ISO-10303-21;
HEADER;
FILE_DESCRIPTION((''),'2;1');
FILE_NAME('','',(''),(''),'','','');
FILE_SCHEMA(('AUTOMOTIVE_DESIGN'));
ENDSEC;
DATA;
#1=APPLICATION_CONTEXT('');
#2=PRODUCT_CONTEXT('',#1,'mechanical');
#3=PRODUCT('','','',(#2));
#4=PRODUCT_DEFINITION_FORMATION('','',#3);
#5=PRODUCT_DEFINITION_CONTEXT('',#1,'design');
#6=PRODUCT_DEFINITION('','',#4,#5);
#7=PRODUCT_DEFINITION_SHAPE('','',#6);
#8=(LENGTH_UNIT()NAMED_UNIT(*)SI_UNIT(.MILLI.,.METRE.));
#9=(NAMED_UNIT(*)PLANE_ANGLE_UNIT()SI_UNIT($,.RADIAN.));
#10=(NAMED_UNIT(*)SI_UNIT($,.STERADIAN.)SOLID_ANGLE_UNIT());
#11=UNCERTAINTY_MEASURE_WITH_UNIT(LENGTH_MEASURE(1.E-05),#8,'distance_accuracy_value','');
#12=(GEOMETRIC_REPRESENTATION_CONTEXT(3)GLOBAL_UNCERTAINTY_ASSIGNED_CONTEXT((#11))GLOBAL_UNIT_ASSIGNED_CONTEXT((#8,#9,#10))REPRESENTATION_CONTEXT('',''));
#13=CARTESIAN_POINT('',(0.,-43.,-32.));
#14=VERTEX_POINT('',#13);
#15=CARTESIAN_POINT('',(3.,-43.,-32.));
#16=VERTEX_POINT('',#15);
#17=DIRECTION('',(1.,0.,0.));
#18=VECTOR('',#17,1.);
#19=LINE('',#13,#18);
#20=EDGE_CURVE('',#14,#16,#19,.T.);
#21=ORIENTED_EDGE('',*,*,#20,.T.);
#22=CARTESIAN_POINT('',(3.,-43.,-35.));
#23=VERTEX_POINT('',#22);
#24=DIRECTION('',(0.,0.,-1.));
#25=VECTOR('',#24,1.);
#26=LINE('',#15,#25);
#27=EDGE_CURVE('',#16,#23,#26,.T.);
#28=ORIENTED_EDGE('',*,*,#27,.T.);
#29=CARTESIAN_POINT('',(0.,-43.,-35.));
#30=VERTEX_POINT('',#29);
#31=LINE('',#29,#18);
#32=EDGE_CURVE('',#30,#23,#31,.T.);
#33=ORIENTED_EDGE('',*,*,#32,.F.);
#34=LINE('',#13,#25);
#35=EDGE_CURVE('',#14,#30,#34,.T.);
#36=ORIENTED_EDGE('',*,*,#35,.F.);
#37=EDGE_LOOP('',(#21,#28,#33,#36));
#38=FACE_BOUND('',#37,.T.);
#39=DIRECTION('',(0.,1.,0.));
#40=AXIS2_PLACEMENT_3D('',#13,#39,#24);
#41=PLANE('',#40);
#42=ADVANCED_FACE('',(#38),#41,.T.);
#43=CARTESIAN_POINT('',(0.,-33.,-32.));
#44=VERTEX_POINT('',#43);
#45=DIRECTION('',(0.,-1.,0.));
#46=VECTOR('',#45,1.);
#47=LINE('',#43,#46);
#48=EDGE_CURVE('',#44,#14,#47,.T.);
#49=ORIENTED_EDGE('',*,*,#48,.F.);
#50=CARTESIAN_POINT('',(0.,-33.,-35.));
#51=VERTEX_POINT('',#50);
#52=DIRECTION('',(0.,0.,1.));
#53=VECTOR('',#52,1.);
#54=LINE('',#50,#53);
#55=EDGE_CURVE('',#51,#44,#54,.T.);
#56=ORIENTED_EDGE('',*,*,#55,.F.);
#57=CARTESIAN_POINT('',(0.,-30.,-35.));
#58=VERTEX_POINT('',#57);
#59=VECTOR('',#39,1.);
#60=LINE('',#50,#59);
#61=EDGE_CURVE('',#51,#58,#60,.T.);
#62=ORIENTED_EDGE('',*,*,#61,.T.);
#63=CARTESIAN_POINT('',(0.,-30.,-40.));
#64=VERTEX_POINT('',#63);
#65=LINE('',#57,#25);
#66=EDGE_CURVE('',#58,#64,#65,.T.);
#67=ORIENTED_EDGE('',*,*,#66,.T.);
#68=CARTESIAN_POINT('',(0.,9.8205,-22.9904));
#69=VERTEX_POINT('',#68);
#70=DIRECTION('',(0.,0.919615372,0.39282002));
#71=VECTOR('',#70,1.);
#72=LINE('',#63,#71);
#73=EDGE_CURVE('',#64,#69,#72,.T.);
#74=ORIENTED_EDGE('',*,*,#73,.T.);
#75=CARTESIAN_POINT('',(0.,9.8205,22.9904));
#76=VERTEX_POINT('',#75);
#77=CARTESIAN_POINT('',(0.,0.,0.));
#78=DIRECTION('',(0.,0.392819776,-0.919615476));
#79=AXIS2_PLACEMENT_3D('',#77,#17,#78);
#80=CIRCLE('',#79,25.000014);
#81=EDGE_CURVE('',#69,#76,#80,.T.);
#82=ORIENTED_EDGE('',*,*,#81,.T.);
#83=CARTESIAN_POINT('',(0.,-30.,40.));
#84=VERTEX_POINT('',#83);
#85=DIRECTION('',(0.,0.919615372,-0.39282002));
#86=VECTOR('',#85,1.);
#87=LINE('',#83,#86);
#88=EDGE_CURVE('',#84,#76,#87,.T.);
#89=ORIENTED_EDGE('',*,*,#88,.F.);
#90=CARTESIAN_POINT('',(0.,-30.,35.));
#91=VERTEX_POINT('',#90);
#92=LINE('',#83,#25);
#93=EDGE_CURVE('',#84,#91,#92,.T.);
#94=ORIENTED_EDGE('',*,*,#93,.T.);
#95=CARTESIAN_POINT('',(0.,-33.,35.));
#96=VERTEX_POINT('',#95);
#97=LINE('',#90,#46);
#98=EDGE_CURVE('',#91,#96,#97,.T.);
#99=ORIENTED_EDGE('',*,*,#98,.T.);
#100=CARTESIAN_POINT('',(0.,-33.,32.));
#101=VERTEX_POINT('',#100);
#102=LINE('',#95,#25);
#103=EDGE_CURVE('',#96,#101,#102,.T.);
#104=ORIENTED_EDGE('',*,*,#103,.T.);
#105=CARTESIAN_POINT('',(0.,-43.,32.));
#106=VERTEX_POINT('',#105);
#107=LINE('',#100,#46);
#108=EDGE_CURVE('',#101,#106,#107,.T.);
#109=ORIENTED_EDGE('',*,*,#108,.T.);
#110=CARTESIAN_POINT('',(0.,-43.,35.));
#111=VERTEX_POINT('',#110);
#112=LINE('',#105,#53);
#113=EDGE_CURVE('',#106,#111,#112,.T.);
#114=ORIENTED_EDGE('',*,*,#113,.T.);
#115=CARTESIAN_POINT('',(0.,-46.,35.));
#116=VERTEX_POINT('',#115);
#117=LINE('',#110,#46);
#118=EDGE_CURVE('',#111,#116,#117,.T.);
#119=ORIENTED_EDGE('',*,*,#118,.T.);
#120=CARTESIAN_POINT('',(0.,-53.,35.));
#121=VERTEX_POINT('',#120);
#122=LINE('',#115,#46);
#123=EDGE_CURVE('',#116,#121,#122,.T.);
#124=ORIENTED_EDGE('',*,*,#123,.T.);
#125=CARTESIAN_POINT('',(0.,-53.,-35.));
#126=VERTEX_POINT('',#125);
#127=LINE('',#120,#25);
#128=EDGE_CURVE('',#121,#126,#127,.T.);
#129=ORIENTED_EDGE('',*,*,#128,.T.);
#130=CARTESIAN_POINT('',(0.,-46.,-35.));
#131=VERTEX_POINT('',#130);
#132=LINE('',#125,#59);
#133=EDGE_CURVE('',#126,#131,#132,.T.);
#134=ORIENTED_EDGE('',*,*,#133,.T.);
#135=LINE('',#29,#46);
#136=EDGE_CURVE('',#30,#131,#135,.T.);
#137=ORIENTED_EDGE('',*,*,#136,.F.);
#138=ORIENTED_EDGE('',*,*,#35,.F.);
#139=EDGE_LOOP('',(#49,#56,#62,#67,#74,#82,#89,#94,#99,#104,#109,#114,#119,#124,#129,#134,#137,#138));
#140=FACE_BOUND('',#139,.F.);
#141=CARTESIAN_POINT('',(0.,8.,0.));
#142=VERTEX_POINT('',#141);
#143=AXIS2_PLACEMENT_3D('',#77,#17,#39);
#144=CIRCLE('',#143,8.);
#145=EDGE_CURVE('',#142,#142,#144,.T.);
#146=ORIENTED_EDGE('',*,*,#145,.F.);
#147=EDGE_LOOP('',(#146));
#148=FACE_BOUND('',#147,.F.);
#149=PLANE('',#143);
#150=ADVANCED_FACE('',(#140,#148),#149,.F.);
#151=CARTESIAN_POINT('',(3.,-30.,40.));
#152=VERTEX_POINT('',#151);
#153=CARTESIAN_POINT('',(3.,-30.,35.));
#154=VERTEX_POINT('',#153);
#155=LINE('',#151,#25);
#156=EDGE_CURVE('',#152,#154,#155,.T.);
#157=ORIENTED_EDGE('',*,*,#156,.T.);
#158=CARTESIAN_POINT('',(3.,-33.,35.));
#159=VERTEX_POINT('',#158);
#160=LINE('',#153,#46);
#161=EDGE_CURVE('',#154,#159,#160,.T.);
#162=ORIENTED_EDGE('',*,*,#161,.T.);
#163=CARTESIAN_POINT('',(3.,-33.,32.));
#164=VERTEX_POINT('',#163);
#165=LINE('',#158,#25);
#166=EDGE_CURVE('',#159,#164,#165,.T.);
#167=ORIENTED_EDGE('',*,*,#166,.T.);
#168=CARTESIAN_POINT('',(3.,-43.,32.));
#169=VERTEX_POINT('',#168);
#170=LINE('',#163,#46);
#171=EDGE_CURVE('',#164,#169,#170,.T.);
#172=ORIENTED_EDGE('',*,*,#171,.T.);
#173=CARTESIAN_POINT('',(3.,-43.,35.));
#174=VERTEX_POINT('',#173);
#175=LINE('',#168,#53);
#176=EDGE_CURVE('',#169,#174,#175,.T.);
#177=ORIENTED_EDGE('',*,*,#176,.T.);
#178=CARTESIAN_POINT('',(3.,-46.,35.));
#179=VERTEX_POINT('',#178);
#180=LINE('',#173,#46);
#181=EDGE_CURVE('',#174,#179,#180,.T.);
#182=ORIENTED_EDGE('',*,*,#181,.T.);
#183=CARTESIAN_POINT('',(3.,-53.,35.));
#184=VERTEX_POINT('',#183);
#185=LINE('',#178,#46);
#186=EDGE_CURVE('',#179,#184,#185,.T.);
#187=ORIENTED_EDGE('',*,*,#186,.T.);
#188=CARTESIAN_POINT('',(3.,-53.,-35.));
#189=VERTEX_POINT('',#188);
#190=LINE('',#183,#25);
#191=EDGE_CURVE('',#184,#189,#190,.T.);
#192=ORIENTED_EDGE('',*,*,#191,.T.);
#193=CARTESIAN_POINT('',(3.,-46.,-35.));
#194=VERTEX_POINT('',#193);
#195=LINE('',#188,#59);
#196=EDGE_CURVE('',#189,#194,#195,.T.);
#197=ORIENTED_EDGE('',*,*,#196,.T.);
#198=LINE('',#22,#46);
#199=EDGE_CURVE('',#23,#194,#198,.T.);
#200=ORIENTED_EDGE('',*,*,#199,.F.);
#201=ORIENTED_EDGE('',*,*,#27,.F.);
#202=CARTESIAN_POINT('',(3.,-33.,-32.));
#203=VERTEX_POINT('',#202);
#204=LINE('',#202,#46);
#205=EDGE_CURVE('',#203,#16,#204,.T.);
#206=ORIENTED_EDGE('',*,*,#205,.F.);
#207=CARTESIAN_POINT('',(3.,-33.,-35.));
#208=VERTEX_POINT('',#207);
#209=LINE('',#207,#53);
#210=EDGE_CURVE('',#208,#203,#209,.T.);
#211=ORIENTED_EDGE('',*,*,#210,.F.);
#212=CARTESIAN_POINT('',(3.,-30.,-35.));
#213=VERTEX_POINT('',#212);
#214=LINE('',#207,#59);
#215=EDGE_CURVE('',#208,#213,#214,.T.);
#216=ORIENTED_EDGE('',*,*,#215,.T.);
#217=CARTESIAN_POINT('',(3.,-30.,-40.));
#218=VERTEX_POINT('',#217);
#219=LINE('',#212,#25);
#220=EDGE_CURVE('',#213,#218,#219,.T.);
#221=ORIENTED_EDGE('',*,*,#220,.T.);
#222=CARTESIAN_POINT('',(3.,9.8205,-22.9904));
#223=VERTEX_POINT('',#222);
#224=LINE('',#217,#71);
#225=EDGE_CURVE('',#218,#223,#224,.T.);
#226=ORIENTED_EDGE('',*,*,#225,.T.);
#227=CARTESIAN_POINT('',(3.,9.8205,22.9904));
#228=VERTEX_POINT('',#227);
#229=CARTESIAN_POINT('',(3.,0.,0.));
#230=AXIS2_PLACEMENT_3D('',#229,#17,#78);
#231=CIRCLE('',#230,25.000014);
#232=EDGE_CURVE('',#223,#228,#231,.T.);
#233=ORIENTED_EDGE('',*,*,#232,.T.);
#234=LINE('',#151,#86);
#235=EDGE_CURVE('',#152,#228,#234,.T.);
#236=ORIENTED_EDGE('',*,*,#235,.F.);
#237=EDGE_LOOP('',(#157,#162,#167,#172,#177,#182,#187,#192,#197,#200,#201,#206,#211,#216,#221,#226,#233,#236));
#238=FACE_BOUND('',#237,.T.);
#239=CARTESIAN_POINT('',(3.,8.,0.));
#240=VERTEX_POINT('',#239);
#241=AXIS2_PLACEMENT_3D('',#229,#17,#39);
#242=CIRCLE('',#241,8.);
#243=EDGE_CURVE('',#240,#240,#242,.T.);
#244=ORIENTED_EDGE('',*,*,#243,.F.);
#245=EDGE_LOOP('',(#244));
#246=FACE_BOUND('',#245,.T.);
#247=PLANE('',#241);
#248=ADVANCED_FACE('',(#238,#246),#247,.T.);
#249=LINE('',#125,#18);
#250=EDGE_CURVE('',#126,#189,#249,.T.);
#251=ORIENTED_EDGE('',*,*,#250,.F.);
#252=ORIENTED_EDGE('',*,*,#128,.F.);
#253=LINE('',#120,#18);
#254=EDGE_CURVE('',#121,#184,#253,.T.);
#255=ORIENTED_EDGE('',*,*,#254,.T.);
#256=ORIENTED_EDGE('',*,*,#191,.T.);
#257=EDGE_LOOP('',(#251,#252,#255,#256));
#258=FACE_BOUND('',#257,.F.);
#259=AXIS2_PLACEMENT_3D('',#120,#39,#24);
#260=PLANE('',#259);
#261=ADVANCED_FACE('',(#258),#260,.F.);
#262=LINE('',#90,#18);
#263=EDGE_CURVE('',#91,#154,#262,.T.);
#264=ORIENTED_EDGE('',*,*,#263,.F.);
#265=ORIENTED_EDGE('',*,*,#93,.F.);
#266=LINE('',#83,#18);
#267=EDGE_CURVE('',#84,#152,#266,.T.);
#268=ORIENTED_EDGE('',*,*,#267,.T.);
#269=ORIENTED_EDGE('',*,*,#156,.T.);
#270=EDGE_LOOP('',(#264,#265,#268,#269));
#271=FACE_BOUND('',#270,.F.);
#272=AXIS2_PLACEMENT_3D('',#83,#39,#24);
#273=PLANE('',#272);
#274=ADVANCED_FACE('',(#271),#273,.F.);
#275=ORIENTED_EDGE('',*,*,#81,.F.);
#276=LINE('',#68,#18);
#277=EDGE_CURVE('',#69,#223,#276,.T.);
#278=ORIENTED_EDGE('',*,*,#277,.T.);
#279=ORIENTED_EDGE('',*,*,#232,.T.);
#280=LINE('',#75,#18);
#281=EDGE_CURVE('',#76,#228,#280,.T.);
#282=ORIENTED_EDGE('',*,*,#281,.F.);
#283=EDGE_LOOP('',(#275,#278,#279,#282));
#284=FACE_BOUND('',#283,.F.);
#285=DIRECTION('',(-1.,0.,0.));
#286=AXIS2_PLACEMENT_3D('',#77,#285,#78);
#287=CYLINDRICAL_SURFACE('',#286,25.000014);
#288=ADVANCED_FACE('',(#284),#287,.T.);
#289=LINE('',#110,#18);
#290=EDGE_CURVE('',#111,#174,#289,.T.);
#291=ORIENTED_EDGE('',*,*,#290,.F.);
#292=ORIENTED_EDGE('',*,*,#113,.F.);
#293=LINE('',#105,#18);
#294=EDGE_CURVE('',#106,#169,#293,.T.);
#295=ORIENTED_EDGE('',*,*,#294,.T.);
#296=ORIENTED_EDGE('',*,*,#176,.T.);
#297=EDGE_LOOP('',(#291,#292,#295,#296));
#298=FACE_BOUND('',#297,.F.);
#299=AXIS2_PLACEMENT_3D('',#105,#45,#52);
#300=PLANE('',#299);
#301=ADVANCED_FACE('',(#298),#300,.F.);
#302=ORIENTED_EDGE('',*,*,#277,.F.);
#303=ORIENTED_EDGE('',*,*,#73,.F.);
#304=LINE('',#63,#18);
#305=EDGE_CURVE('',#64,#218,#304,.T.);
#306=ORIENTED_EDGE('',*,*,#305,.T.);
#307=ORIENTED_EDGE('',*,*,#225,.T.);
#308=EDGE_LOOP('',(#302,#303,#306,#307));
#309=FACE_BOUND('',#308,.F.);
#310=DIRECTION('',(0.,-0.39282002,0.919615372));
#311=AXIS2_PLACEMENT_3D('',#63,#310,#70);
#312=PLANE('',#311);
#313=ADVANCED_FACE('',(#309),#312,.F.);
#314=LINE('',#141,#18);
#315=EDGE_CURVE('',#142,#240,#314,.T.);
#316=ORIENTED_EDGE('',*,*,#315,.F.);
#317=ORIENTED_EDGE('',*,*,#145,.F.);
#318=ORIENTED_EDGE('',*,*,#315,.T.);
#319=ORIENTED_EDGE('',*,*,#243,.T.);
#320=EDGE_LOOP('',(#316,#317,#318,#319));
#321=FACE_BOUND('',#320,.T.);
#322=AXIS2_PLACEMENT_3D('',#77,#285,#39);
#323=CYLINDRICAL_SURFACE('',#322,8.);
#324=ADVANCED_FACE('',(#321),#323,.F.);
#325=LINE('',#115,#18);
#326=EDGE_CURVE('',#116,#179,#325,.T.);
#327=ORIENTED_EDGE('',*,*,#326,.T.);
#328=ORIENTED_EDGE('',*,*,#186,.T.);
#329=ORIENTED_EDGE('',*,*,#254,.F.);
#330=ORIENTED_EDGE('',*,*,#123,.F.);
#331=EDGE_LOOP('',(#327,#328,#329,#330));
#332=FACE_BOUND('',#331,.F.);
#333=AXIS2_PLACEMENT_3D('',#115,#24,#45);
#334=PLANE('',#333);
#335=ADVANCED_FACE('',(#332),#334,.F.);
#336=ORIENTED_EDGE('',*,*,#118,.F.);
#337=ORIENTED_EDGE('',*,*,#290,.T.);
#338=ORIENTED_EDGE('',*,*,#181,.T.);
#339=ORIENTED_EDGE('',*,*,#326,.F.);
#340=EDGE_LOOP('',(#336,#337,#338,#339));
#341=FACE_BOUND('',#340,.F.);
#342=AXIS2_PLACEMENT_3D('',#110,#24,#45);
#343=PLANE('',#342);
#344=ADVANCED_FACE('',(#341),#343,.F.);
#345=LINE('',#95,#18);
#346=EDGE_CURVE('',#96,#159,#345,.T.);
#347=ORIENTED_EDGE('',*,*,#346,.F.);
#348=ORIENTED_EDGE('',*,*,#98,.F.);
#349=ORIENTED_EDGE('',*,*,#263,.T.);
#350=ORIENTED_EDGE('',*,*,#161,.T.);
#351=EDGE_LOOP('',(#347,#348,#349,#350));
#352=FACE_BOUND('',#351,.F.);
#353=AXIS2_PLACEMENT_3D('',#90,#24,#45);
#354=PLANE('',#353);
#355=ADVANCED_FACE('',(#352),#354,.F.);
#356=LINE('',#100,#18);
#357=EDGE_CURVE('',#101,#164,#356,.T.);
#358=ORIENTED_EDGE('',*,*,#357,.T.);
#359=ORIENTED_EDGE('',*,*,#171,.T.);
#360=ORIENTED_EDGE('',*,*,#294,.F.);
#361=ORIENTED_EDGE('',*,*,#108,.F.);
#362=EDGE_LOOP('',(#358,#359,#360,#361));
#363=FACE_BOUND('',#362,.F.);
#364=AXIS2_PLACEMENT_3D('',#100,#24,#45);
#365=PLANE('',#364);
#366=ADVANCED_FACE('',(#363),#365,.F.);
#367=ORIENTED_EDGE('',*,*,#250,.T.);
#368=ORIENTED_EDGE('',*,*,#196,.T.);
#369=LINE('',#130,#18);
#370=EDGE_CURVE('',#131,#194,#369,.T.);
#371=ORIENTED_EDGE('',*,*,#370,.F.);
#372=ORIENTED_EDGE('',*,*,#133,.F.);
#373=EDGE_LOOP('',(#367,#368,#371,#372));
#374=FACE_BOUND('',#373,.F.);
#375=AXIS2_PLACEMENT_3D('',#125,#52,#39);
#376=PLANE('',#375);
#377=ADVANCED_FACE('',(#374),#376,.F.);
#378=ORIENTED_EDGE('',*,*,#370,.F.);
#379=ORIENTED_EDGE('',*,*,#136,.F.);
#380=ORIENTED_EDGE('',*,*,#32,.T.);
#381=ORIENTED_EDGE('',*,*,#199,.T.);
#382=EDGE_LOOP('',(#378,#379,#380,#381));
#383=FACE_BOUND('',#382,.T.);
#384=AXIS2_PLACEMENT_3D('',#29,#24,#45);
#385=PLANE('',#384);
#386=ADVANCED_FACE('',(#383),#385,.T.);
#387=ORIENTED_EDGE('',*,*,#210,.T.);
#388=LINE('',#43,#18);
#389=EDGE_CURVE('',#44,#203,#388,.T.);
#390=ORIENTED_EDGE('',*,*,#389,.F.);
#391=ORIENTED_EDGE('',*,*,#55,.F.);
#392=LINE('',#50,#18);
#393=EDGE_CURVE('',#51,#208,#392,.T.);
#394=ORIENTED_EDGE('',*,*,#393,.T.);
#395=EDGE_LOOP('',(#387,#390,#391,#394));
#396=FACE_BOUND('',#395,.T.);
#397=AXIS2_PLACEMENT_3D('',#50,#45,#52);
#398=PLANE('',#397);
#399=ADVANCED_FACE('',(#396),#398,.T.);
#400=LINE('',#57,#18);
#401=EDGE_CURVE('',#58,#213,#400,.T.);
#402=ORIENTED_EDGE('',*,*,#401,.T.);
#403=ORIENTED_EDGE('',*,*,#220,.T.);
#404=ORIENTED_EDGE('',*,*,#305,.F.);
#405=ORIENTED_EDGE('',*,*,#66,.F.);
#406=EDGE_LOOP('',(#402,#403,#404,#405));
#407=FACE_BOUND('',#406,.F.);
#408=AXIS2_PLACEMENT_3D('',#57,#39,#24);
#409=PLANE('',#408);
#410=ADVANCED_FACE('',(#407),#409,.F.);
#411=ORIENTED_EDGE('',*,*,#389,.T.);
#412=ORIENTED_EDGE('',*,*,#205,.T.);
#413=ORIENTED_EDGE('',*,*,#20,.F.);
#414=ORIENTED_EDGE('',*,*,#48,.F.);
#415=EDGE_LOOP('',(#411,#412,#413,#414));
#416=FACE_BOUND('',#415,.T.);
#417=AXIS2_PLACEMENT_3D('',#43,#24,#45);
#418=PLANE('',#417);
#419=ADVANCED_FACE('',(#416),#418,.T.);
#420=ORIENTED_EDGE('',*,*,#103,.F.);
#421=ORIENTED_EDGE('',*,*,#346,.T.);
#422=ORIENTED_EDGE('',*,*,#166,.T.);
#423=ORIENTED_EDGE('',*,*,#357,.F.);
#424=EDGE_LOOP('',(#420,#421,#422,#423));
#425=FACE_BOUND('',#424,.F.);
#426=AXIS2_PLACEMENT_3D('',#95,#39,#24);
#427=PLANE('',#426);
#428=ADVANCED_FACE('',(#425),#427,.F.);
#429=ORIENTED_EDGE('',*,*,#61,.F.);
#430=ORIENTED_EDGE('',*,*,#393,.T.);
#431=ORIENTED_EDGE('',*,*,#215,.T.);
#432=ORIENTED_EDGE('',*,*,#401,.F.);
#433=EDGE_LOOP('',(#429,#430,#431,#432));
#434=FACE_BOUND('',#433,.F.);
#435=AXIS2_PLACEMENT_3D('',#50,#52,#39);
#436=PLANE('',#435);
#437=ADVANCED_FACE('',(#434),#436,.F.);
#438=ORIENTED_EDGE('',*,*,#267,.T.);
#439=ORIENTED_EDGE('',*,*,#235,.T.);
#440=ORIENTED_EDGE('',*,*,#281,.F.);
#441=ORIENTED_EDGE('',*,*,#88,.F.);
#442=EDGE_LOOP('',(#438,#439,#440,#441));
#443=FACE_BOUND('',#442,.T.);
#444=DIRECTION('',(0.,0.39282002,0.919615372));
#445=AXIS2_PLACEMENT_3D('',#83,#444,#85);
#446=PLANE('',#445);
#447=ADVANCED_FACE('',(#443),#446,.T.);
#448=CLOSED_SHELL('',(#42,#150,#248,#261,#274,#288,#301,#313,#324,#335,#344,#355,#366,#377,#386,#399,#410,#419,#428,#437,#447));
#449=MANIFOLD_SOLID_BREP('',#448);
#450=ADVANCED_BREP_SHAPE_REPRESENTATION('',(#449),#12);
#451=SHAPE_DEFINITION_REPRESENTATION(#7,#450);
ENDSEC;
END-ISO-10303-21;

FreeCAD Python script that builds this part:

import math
import FreeCAD as App
import Part
import Sketcher
from FreeCAD import Vector
Q = App.Units.Quantity

doc = App.newDocument("Part")
params = doc.addObject("Spreadsheet::Sheet", "Params")
for row, (alias, value) in enumerate([
    ("sketch1_diameter", "16 mm"),
    ("sketch1_radius", "25 mm"),
    ("sketch1_width", "3 mm"),
    ("sketch1_width2", "10 mm"),
    ("sketch1_height", "5 mm"),
    ("pad1_length", "3 mm"),
], start=1):
    params.set(f"A{row}", alias)
    params.set(f"B{row}", "=" + value)
    params.setAlias(f"B{row}", alias)

body = doc.addObject("PartDesign::Body", "Body")

sketch1 = body.newObject("Sketcher::SketchObject", "Sketch")
sketch1.AttachmentSupport = (doc.getObject("YZ_Plane"), [""])
sketch1.MapMode = "FlatFace"
sketch1.addGeometry([
    Part.LineSegment(Vector(-30, -35, 0), Vector(-30, -40, 0)),
    Part.LineSegment(Vector(-30, -40, 0), Vector(9.8, -23, 0)),
    Part.ArcOfCircle(Part.Circle(Vector(0, 0, 0), Vector(0, 0, 1), 25), math.radians(-67), math.radians(67)),
    Part.LineSegment(Vector(9.8, 23, 0), Vector(-30, 40, 0)),
    Part.LineSegment(Vector(-30, 40, 0), Vector(-30, 35, 0)),
    Part.LineSegment(Vector(-30, 35, 0), Vector(-33, 35, 0)),
    Part.LineSegment(Vector(-33, 35, 0), Vector(-33, 32, 0)),
    Part.LineSegment(Vector(-33, 32, 0), Vector(-43, 32, 0)),
    Part.LineSegment(Vector(-43, 32, 0), Vector(-43, 35, 0)),
    Part.LineSegment(Vector(-43, 35, 0), Vector(-53, 35, 0)),
    Part.LineSegment(Vector(-53, 35, 0), Vector(-53, -35, 0)),
    Part.LineSegment(Vector(-53, -35, 0), Vector(-43, -35, 0)),
    Part.LineSegment(Vector(-43, -35, 0), Vector(-43, -32, 0)),
    Part.LineSegment(Vector(-43, -32, 0), Vector(-33, -32, 0)),
    Part.LineSegment(Vector(-33, -32, 0), Vector(-33, -35, 0)),
    Part.LineSegment(Vector(-33, -35, 0), Vector(-30, -35, 0)),
    Part.Circle(Vector(0, 0, 0), Vector(0, 0, 1), 8),
], False)
sketch1.addConstraint([
    Sketcher.Constraint("Coincident", 0, 2, 1, 1),
    Sketcher.Constraint("Tangent", 1, 2, 2, 1),
    Sketcher.Constraint("Tangent", 2, 2, 3, 1),
    Sketcher.Constraint("Coincident", 3, 2, 4, 1),
    Sketcher.Constraint("Coincident", 4, 2, 5, 1),
    Sketcher.Constraint("Coincident", 5, 2, 6, 1),
    Sketcher.Constraint("Coincident", 6, 2, 7, 1),
    Sketcher.Constraint("Coincident", 7, 2, 8, 1),
    Sketcher.Constraint("Coincident", 8, 2, 9, 1),
    Sketcher.Constraint("Coincident", 9, 2, 10, 1),
    Sketcher.Constraint("Coincident", 10, 2, 11, 1),
    Sketcher.Constraint("Coincident", 11, 2, 12, 1),
    Sketcher.Constraint("Coincident", 12, 2, 13, 1),
    Sketcher.Constraint("Coincident", 13, 2, 14, 1),
    Sketcher.Constraint("Coincident", 14, 2, 15, 1),
    Sketcher.Constraint("Coincident", 15, 2, 0, 1),
    Sketcher.Constraint("Vertical", 0),
    Sketcher.Constraint("Vertical", 4),
    Sketcher.Constraint("Horizontal", 5),
    Sketcher.Constraint("Vertical", 6),
    Sketcher.Constraint("Horizontal", 7),
    Sketcher.Constraint("Vertical", 8),
    Sketcher.Constraint("Horizontal", 9),
    Sketcher.Constraint("Vertical", 10),
    Sketcher.Constraint("Horizontal", 11),
    Sketcher.Constraint("Vertical", 12),
    Sketcher.Constraint("Horizontal", 13),
    Sketcher.Constraint("Vertical", 14),
    Sketcher.Constraint("Horizontal", 15),
    Sketcher.Constraint("Coincident", 2, 3, -1, 1),
    Sketcher.Constraint("Coincident", 16, 3, -1, 1),
    Sketcher.Constraint("Symmetric", 0, 2, 3, 2, -1),
    Sketcher.Constraint("Symmetric", 8, 2, 11, 2, -1),
    Sketcher.Constraint("Symmetric", 6, 2, 13, 2, -1),
    Sketcher.Constraint("Horizontal", 5, 2, 8, 2),
    Sketcher.Constraint("Horizontal", 11, 2, 14, 2),
    Sketcher.Constraint("Equal", 7, 9),
    Sketcher.Constraint("Equal", 15, 6),
    Sketcher.Constraint("Diameter", 16, Q("16 mm")),
    Sketcher.Constraint("Radius", 2, Q("25 mm")),
    Sketcher.Constraint("DistanceX", 5, 2, 5, 1, Q("3 mm")),
    Sketcher.Constraint("DistanceX", 7, 2, 7, 1, Q("10 mm")),
    Sketcher.Constraint("DistanceY", 0, 2, 0, 1, Q("5 mm")),
    Sketcher.Constraint("DistanceY", 10, 2, 10, 1, Q("70 mm")),
    Sketcher.Constraint("DistanceX", 0, 2, -1, 1, Q("30 mm")),
])
sketch1.setExpression("Constraints[38]", "Params.sketch1_diameter")
sketch1.setExpression("Constraints[39]", "Params.sketch1_radius")
sketch1.setExpression("Constraints[40]", "Params.sketch1_width")
sketch1.setExpression("Constraints[41]", "Params.sketch1_width2")
sketch1.setExpression("Constraints[42]", "Params.sketch1_height")
pad1 = body.newObject("PartDesign::Pad", "Pad")
pad1.Profile = sketch1
pad1.setExpression("Length", "Params.pad1_length")

doc.recompute()
